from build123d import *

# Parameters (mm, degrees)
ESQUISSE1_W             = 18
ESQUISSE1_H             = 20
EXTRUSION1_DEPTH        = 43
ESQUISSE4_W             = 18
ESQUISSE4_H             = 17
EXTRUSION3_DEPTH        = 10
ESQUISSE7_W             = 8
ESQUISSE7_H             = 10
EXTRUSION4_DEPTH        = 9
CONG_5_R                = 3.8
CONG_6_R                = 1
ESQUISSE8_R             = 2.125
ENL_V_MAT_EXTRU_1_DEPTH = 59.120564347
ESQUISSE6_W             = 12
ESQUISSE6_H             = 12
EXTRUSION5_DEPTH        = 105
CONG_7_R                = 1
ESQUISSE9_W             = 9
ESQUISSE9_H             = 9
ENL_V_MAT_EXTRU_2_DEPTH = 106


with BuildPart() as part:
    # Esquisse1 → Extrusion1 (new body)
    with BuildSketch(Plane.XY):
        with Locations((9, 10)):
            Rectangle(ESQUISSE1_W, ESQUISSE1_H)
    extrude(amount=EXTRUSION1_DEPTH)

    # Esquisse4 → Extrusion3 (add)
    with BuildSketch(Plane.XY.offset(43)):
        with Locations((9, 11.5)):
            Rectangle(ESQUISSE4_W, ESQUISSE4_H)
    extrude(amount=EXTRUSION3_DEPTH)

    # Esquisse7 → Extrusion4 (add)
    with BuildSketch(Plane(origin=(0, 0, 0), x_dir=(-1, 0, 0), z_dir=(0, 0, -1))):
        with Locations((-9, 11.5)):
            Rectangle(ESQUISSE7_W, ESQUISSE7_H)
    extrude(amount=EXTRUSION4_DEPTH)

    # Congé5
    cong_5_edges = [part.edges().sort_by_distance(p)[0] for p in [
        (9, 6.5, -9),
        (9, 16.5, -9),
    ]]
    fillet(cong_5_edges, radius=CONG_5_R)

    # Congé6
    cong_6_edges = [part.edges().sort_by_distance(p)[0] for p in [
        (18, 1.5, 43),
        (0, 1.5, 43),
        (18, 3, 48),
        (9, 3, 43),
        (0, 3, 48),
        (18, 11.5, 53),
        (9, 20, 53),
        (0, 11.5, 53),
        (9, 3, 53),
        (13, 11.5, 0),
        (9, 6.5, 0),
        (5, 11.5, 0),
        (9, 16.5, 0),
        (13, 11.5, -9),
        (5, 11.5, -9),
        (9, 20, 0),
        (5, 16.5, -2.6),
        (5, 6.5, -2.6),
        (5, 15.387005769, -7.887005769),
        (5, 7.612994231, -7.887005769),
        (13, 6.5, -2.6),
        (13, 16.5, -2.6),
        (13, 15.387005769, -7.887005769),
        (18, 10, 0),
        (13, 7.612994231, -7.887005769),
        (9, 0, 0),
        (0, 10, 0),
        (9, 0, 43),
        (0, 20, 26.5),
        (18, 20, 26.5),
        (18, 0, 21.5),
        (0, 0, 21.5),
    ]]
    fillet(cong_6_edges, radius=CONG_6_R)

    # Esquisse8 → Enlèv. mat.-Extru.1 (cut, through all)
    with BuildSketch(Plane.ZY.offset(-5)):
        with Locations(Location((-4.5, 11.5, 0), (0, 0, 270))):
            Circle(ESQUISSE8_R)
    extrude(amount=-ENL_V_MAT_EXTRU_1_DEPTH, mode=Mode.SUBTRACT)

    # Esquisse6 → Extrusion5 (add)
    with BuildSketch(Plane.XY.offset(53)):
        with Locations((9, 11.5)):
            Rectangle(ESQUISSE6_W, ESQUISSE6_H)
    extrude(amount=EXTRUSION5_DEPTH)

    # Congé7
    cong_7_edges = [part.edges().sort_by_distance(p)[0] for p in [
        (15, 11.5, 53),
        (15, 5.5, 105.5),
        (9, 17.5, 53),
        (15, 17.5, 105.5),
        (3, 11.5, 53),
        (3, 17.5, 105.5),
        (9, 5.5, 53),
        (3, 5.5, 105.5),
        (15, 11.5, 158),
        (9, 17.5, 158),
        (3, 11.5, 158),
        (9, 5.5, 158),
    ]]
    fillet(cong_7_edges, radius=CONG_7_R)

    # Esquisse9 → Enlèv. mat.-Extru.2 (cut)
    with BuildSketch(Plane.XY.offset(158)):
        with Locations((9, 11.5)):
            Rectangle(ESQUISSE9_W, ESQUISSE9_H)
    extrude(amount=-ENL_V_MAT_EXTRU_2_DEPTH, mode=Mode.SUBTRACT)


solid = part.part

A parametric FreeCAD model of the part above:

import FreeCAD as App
import Part
import Sketcher
from FreeCAD import Vector
Q = App.Units.Quantity


def edges_at(feature, points):
    """Names of the edges that pass closest to the given points."""
    edges = feature.Shape.Edges
    near = lambda p: min(range(len(edges)), key=lambda i: edges[i].distToShape(Part.Vertex(*p))[0])
    return sorted({f"Edge{near(p) + 1}" for p in points})

doc = App.newDocument("Part")
body = doc.addObject("PartDesign::Body", "Body")

# Sketch on XY plane
sketch1 = doc.addObject("Sketcher::SketchObject", "Sketch")
body.addObject(sketch1)
sketch1.AttachmentSupport = (doc.XY_Plane, [""])
sketch1.MapMode = "FlatFace"
sketch1.addGeometry(Part.LineSegment(Vector(0, 20, 0), Vector(0, 0, 0)), False)
sketch1.addGeometry(Part.LineSegment(Vector(0, 0, 0), Vector(18, 0, 0)), False)
sketch1.addGeometry(Part.LineSegment(Vector(18, 0, 0), Vector(18, 20, 0)), False)
sketch1.addGeometry(Part.LineSegment(Vector(18, 20, 0), Vector(0, 20, 0)), False)
sketch1.addConstraint(Sketcher.Constraint("Coincident", 0, 2, 1, 1))
sketch1.addConstraint(Sketcher.Constraint("Coincident", 1, 2, 2, 1))
sketch1.addConstraint(Sketcher.Constraint("Coincident", 2, 2, 3, 1))
sketch1.addConstraint(Sketcher.Constraint("Coincident", 3, 2, 0, 1))
sketch1.addConstraint(Sketcher.Constraint("Vertical", 0))
sketch1.addConstraint(Sketcher.Constraint("Horizontal", 1))
sketch1.addConstraint(Sketcher.Constraint("Vertical", 2))
sketch1.addConstraint(Sketcher.Constraint("Horizontal", 3))
sketch1.addConstraint(Sketcher.Constraint("Coincident", 0, 2, -1, 1))
sketch1.addConstraint(Sketcher.Constraint("DistanceX", 1, 1, 1, 2, Q("18 mm")))
sketch1.addConstraint(Sketcher.Constraint("DistanceY", 0, 2, 0, 1, Q("20 mm")))
pad1 = doc.addObject("PartDesign::Pad", "Pad")
body.addObject(pad1)
pad1.Profile = sketch1
pad1.Length = 43

# Sketch on XY plane
sketch2 = doc.addObject("Sketcher::SketchObject", "Sketch001")
body.addObject(sketch2)
sketch2.AttachmentSupport = (doc.XY_Plane, [""])
sketch2.MapMode = "FlatFace"
sketch2.AttachmentOffset = App.Placement(Vector(0, 0, 43), App.Rotation())
sketch2.addGeometry(Part.LineSegment(Vector(0, 20, 0), Vector(0, 3, 0)), False)
sketch2.addGeometry(Part.LineSegment(Vector(0, 3, 0), Vector(18, 3, 0)), False)
sketch2.addGeometry(Part.LineSegment(Vector(18, 3, 0), Vector(18, 20, 0)), False)
sketch2.addGeometry(Part.LineSegment(Vector(18, 20, 0), Vector(0, 20, 0)), False)
sketch2.addConstraint(Sketcher.Constraint("Coincident", 0, 2, 1, 1))
sketch2.addConstraint(Sketcher.Constraint("Coincident", 1, 2, 2, 1))
sketch2.addConstraint(Sketcher.Constraint("Coincident", 2, 2, 3, 1))
sketch2.addConstraint(Sketcher.Constraint("Coincident", 3, 2, 0, 1))
sketch2.addConstraint(Sketcher.Constraint("Vertical", 0))
sketch2.addConstraint(Sketcher.Constraint("Horizontal", 1))
sketch2.addConstraint(Sketcher.Constraint("Vertical", 2))
sketch2.addConstraint(Sketcher.Constraint("Horizontal", 3))
sketch2.addConstraint(Sketcher.Constraint("PointOnObject", 0, 2, -2))
sketch2.addConstraint(Sketcher.Constraint("DistanceX", 1, 1, 1, 2, Q("18 mm")))
sketch2.addConstraint(Sketcher.Constraint("DistanceY", 0, 2, 0, 1, Q("17 mm")))
sketch2.addConstraint(Sketcher.Constraint("DistanceY", -1, 1, 0, 2, Q("3 mm")))
pad2 = doc.addObject("PartDesign::Pad", "Pad001")
body.addObject(pad2)
pad2.Profile = sketch2
pad2.Length = 10

# Sketch on XY plane
sketch3 = doc.addObject("Sketcher::SketchObject", "Sketch002")
body.addObject(sketch3)
sketch3.AttachmentSupport = (doc.XY_Plane, [""])
sketch3.MapMode = "FlatFace"
sketch3.addGeometry(Part.LineSegment(Vector(13, 16, 0), Vector(13, 6, 0)), False)
sketch3.addGeometry(Part.LineSegment(Vector(13, 6, 0), Vector(5, 6, 0)), False)
sketch3.addGeometry(Part.LineSegment(Vector(5, 6, 0), Vector(5, 16, 0)), False)
sketch3.addGeometry(Part.LineSegment(Vector(5, 16, 0), Vector(13, 16, 0)), False)
sketch3.addConstraint(Sketcher.Constraint("Coincident", 0, 2, 1, 1))
sketch3.addConstraint(Sketcher.Constraint("Coincident", 1, 2, 2, 1))
sketch3.addConstraint(Sketcher.Constraint("Coincident", 2, 2, 3, 1))
sketch3.addConstraint(Sketcher.Constraint("Coincident", 3, 2, 0, 1))
sketch3.addConstraint(Sketcher.Constraint("Vertical", 0))
sketch3.addConstraint(Sketcher.Constraint("Horizontal", 1))
sketch3.addConstraint(Sketcher.Constraint("Vertical", 2))
sketch3.addConstraint(Sketcher.Constraint("Horizontal", 3))
sketch3.addConstraint(Sketcher.Constraint("DistanceX", 1, 2, 1, 1, Q("8 mm")))
sketch3.addConstraint(Sketcher.Constraint("DistanceY", 0, 2, 0, 1, Q("10 mm")))
sketch3.addConstraint(Sketcher.Constraint("DistanceX", -1, 1, 0, 2, Q("13 mm")))
sketch3.addConstraint(Sketcher.Constraint("DistanceY", -1, 1, 0, 2, Q("6.5 mm")))
pad3 = doc.addObject("PartDesign::Pad", "Pad002")
body.addObject(pad3)
pad3.Profile = sketch3
pad3.Length = 9
pad3.Reversed = True
doc.recompute()

fillet = doc.addObject("PartDesign::Fillet", "Fillet")
body.addObject(fillet)
fillet.Base = (pad3, edges_at(pad3, [(9, 6.5, -9), (9, 16.5, -9)]))
fillet.Radius = 3.8
doc.recompute()

fillet2 = doc.addObject("PartDesign::Fillet", "Fillet001")
body.addObject(fillet2)
fillet2.Base = (fillet, ["Edge1"])
fillet2.UseAllEdges = True
fillet2.Radius = 1

# Sketch on YZ plane
sketch4 = doc.addObject("Sketcher::SketchObject", "Sketch003")
body.addObject(sketch4)
sketch4.AttachmentSupport = (doc.YZ_Plane, [""])
sketch4.MapMode = "FlatFace"
sketch4.AttachmentOffset = App.Placement(Vector(0, 0, 5), App.Rotation())
sketch4.addGeometry(Part.Circle(Vector(11.5, -4.5, 0), Vector(0, 0, 1), 2.1), False)
sketch4.addConstraint(Sketcher.Constraint("Diameter", 0, Q("4.25 mm")))
sketch4.addConstraint(Sketcher.Constraint("DistanceX", -1, 1, 0, 3, Q("11.5 mm")))
sketch4.addConstraint(Sketcher.Constraint("DistanceY", 0, 3, -1, 1, Q("4.5 mm")))
pocket1 = doc.addObject("PartDesign::Pocket", "Pocket")
body.addObject(pocket1)
pocket1.Profile = sketch4
pocket1.Type = "ThroughAll"
pocket1.Reversed = True

# Sketch on XY plane
sketch5 = doc.addObject("Sketcher::SketchObject", "Sketch004")
body.addObject(sketch5)
sketch5.AttachmentSupport = (doc.XY_Plane, [""])
sketch5.MapMode = "FlatFace"
sketch5.AttachmentOffset = App.Placement(Vector(0, 0, 53), App.Rotation())
sketch5.addGeometry(Part.LineSegment(Vector(3, 18, 0), Vector(3, 6, 0)), False)
sketch5.addGeometry(Part.LineSegment(Vector(3, 6, 0), Vector(15, 6, 0)), False)
sketch5.addGeometry(Part.LineSegment(Vector(15, 6, 0), Vector(15, 18, 0)), False)
sketch5.addGeometry(Part.LineSegment(Vector(15, 18, 0), Vector(3, 18, 0)), False)
sketch5.addConstraint(Sketcher.Constraint("Coincident", 0, 2, 1, 1))
sketch5.addConstraint(Sketcher.Constraint("Coincident", 1, 2, 2, 1))
sketch5.addConstraint(Sketcher.Constraint("Coincident", 2, 2, 3, 1))
sketch5.addConstraint(Sketcher.Constraint("Coincident", 3, 2, 0, 1))
sketch5.addConstraint(Sketcher.Constraint("Vertical", 0))
sketch5.addConstraint(Sketcher.Constraint("Horizontal", 1))
sketch5.addConstraint(Sketcher.Constraint("Vertical", 2))
sketch5.addConstraint(Sketcher.Constraint("Horizontal", 3))
sketch5.addConstraint(Sketcher.Constraint("Equal", 3, 0))
sketch5.addConstraint(Sketcher.Constraint("DistanceX", 1, 1, 1, 2, Q("12 mm")))
sketch5.addConstraint(Sketcher.Constraint("DistanceX", -1, 1, 0, 2, Q("3 mm")))
sketch5.addConstraint(Sketcher.Constraint("DistanceY", -1, 1, 0, 2, Q("5.5 mm")))
pad4 = doc.addObject("PartDesign::Pad", "Pad003")
body.addObject(pad4)
pad4.Profile = sketch5
pad4.Length = 105
doc.recompute()

fillet3 = doc.addObject("PartDesign::Fillet", "Fillet002")
body.addObject(fillet3)
fillet3.Base = (pad4, edges_at(pad4, [
    (15, 11.5, 53),
    (15, 5.5, 105.5),
    (9, 17.5, 53),
    (15, 17.5, 105.5),
    (3, 11.5, 53),
    (3, 17.5, 105.5),
    (9, 5.5, 53),
    (3, 5.5, 105.5),
    (15, 11.5, 158),
    (9, 17.5, 158),
    (3, 11.5, 158),
    (9, 5.5, 158),
]))
fillet3.Radius = 1

# Sketch on XY plane
sketch6 = doc.addObject("Sketcher::SketchObject", "Sketch005")
body.addObject(sketch6)
sketch6.AttachmentSupport = (doc.XY_Plane, [""])
sketch6.MapMode = "FlatFace"
sketch6.AttachmentOffset = App.Placement(Vector(0, 0, 158), App.Rotation())
sketch6.addGeometry(Part.LineSegment(Vector(4, 16, 0), Vector(4, 7, 0)), False)
sketch6.addGeometry(Part.LineSegment(Vector(4, 7, 0), Vector(14, 7, 0)), False)
sketch6.addGeometry(Part.LineSegment(Vector(14, 7, 0), Vector(14, 16, 0)), False)
sketch6.addGeometry(Part.LineSegment(Vector(14, 16, 0), Vector(4, 16, 0)), False)
sketch6.addConstraint(Sketcher.Constraint("Coincident", 0, 2, 1, 1))
sketch6.addConstraint(Sketcher.Constraint("Coincident", 1, 2, 2, 1))
sketch6.addConstraint(Sketcher.Constraint("Coincident", 2, 2, 3, 1))
sketch6.addConstraint(Sketcher.Constraint("Coincident", 3, 2, 0, 1))
sketch6.addConstraint(Sketcher.Constraint("Vertical", 0))
sketch6.addConstraint(Sketcher.Constraint("Horizontal", 1))
sketch6.addConstraint(Sketcher.Constraint("Vertical", 2))
sketch6.addConstraint(Sketcher.Constraint("Horizontal", 3))
sketch6.addConstraint(Sketcher.Constraint("Equal", 3, 0))
sketch6.addConstraint(Sketcher.Constraint("DistanceX", 1, 1, 1, 2, Q("9 mm")))
sketch6.addConstraint(Sketcher.Constraint("DistanceY", -1, 1, 0, 2, Q("7 mm")))
sketch6.addConstraint(Sketcher.Constraint("DistanceX", -1, 1, 0, 2, Q("4.5 mm")))
pocket2 = doc.addObject("PartDesign::Pocket", "Pocket001")
body.addObject(pocket2)
pocket2.Profile = sketch6
pocket2.Length = 106

doc.recompute()
